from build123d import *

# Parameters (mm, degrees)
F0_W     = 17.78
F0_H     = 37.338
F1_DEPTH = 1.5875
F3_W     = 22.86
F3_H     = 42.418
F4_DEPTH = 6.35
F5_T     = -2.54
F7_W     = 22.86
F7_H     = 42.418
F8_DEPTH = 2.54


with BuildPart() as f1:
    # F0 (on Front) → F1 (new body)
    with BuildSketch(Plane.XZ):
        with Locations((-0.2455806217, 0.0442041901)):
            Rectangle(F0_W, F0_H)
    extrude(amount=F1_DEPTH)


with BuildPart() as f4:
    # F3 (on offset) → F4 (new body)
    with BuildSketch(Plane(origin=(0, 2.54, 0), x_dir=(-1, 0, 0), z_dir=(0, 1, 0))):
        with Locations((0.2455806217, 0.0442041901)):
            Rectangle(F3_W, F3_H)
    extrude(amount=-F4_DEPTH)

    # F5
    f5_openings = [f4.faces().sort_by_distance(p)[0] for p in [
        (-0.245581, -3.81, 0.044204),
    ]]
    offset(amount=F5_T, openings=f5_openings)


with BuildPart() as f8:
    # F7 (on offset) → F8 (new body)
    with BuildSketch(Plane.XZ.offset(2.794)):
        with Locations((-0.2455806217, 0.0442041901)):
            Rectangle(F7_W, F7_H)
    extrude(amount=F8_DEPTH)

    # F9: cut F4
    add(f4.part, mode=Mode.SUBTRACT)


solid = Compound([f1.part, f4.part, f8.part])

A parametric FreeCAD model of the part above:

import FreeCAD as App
import Part
import Sketcher
Q = App.Units.Quantity


def faces_at(feature, points):
    """Names of the faces that lie closest to the given points."""
    faces = feature.Shape.Faces
    near = lambda p: min(range(len(faces)), key=lambda i: faces[i].distToShape(Part.Vertex(*p))[0])
    return sorted({f"Face{near(p) + 1}" for p in points})


def add_polygon(sketch, points):
    """Adds a closed chain of lines whose ends are joined by coincident constraints."""
    first, n = sketch.GeometryCount, len(points)
    for a, b in zip(points, points[1:] + points[:1]):
        sketch.addGeometry(Part.LineSegment(App.Vector(*a, 0), App.Vector(*b, 0)), False)
    for i in range(n):
        sketch.addConstraint(Sketcher.Constraint("Coincident", first + i, 2, first + (i + 1) % n, 1))

doc = App.newDocument("Part")
body = doc.addObject("PartDesign::Body", "Body")

sketch1 = body.newObject("Sketcher::SketchObject", "Sketch")
sketch1.AttachmentSupport = (doc.getObject("XZ_Plane"), [""])
sketch1.MapMode = "FlatFace"
add_polygon(sketch1, [(-9.135581, 18.713204), (-9.135581, -18.624796), (8.644419, -18.624796), (8.644419, 18.713204)])
sketch1.addConstraint([
    Sketcher.Constraint("Vertical", 0),
    Sketcher.Constraint("Horizontal", 1),
    Sketcher.Constraint("Vertical", 2),
    Sketcher.Constraint("Horizontal", 3),
    Sketcher.Constraint("DistanceX", 1, 1, 1, 2, Q("0.7 in")),
    Sketcher.Constraint("DistanceY", 0, 2, 0, 1, Q("1.47 in")),
    Sketcher.Constraint("DistanceX", 0, 2, -1, 1, 9.135581),
    Sketcher.Constraint("DistanceY", 0, 2, -1, 1, 18.624796),
])
pad1 = body.newObject("PartDesign::Pad", "Pad")
pad1.Profile = sketch1
pad1.Length = Q("0.0625 in")
body2 = doc.addObject("PartDesign::Body", "Body001")

sketch2 = body2.newObject("Sketcher::SketchObject", "Sketch001")
sketch2.AttachmentSupport = (doc.getObject("XZ_Plane001"), [""])
sketch2.MapMode = "FlatFace"
sketch2.AttachmentOffset = App.Placement(App.Vector(0, 0, -0.1 * 25.4), App.Rotation())
add_polygon(sketch2, [(11.184419, 21.253204), (11.184419, -21.164796), (-11.675581, -21.164796), (-11.675581, 21.253204)])
sketch2.addConstraint([
    Sketcher.Constraint("Vertical", 0),
    Sketcher.Constraint("Horizontal", 1),
    Sketcher.Constraint("Vertical", 2),
    Sketcher.Constraint("Horizontal", 3),
    Sketcher.Constraint("DistanceX", 1, 2, 1, 1, Q("0.9 in")),
    Sketcher.Constraint("DistanceY", 0, 2, 0, 1, Q("1.67 in")),
    Sketcher.Constraint("DistanceX", -1, 1, 0, 2, 11.184419),
    Sketcher.Constraint("DistanceY", 0, 2, -1, 1, 21.164796),
])
pad2 = body2.newObject("PartDesign::Pad", "Pad001")
pad2.Profile = sketch2
pad2.Length = Q("0.25 in")
doc.recompute()

thickness = body2.newObject("PartDesign::Thickness", "Thickness")
thickness.Base = (pad2, faces_at(pad2, [(-0.246, -3.81, 0.044)]))
thickness.Value = Q("0.1 in")
thickness.Reversed = True
thickness.Join = "Arc"
body3 = doc.addObject("PartDesign::Body", "Body002")

sketch3 = body3.newObject("Sketcher::SketchObject", "Sketch002")
sketch3.AttachmentSupport = (doc.getObject("XZ_Plane002"), [""])
sketch3.MapMode = "FlatFace"
sketch3.AttachmentOffset = App.Placement(App.Vector(0, 0, 0.11 * 25.4), App.Rotation())
add_polygon(sketch3, [(-11.675581, 21.253204), (-11.675581, -21.164796), (11.184419, -21.164796), (11.184419, 21.253204)])
sketch3.addConstraint([
    Sketcher.Constraint("Vertical", 0),
    Sketcher.Constraint("Horizontal", 1),
    Sketcher.Constraint("Vertical", 2),
    Sketcher.Constraint("Horizontal", 3),
    Sketcher.Constraint("DistanceX", 1, 1, 1, 2, Q("0.9 in")),
    Sketcher.Constraint("DistanceY", 0, 2, 0, 1, Q("1.67 in")),
    Sketcher.Constraint("DistanceX", 0, 2, -1, 1, 11.675581),
    Sketcher.Constraint("DistanceY", 0, 2, -1, 1, 21.164796),
])
pad3 = body3.newObject("PartDesign::Pad", "Pad002")
pad3.Profile = sketch3
pad3.Length = Q("0.1 in")
doc.recompute()

body4 = doc.addObject("PartDesign::Body", "Body003")
body4.BaseFeature = body2
boolean = body3.newObject("PartDesign::Boolean", "Boolean")
boolean.Type = "Cut"
boolean.addObjects([body4])
doc.recompute()

doc.recompute()
